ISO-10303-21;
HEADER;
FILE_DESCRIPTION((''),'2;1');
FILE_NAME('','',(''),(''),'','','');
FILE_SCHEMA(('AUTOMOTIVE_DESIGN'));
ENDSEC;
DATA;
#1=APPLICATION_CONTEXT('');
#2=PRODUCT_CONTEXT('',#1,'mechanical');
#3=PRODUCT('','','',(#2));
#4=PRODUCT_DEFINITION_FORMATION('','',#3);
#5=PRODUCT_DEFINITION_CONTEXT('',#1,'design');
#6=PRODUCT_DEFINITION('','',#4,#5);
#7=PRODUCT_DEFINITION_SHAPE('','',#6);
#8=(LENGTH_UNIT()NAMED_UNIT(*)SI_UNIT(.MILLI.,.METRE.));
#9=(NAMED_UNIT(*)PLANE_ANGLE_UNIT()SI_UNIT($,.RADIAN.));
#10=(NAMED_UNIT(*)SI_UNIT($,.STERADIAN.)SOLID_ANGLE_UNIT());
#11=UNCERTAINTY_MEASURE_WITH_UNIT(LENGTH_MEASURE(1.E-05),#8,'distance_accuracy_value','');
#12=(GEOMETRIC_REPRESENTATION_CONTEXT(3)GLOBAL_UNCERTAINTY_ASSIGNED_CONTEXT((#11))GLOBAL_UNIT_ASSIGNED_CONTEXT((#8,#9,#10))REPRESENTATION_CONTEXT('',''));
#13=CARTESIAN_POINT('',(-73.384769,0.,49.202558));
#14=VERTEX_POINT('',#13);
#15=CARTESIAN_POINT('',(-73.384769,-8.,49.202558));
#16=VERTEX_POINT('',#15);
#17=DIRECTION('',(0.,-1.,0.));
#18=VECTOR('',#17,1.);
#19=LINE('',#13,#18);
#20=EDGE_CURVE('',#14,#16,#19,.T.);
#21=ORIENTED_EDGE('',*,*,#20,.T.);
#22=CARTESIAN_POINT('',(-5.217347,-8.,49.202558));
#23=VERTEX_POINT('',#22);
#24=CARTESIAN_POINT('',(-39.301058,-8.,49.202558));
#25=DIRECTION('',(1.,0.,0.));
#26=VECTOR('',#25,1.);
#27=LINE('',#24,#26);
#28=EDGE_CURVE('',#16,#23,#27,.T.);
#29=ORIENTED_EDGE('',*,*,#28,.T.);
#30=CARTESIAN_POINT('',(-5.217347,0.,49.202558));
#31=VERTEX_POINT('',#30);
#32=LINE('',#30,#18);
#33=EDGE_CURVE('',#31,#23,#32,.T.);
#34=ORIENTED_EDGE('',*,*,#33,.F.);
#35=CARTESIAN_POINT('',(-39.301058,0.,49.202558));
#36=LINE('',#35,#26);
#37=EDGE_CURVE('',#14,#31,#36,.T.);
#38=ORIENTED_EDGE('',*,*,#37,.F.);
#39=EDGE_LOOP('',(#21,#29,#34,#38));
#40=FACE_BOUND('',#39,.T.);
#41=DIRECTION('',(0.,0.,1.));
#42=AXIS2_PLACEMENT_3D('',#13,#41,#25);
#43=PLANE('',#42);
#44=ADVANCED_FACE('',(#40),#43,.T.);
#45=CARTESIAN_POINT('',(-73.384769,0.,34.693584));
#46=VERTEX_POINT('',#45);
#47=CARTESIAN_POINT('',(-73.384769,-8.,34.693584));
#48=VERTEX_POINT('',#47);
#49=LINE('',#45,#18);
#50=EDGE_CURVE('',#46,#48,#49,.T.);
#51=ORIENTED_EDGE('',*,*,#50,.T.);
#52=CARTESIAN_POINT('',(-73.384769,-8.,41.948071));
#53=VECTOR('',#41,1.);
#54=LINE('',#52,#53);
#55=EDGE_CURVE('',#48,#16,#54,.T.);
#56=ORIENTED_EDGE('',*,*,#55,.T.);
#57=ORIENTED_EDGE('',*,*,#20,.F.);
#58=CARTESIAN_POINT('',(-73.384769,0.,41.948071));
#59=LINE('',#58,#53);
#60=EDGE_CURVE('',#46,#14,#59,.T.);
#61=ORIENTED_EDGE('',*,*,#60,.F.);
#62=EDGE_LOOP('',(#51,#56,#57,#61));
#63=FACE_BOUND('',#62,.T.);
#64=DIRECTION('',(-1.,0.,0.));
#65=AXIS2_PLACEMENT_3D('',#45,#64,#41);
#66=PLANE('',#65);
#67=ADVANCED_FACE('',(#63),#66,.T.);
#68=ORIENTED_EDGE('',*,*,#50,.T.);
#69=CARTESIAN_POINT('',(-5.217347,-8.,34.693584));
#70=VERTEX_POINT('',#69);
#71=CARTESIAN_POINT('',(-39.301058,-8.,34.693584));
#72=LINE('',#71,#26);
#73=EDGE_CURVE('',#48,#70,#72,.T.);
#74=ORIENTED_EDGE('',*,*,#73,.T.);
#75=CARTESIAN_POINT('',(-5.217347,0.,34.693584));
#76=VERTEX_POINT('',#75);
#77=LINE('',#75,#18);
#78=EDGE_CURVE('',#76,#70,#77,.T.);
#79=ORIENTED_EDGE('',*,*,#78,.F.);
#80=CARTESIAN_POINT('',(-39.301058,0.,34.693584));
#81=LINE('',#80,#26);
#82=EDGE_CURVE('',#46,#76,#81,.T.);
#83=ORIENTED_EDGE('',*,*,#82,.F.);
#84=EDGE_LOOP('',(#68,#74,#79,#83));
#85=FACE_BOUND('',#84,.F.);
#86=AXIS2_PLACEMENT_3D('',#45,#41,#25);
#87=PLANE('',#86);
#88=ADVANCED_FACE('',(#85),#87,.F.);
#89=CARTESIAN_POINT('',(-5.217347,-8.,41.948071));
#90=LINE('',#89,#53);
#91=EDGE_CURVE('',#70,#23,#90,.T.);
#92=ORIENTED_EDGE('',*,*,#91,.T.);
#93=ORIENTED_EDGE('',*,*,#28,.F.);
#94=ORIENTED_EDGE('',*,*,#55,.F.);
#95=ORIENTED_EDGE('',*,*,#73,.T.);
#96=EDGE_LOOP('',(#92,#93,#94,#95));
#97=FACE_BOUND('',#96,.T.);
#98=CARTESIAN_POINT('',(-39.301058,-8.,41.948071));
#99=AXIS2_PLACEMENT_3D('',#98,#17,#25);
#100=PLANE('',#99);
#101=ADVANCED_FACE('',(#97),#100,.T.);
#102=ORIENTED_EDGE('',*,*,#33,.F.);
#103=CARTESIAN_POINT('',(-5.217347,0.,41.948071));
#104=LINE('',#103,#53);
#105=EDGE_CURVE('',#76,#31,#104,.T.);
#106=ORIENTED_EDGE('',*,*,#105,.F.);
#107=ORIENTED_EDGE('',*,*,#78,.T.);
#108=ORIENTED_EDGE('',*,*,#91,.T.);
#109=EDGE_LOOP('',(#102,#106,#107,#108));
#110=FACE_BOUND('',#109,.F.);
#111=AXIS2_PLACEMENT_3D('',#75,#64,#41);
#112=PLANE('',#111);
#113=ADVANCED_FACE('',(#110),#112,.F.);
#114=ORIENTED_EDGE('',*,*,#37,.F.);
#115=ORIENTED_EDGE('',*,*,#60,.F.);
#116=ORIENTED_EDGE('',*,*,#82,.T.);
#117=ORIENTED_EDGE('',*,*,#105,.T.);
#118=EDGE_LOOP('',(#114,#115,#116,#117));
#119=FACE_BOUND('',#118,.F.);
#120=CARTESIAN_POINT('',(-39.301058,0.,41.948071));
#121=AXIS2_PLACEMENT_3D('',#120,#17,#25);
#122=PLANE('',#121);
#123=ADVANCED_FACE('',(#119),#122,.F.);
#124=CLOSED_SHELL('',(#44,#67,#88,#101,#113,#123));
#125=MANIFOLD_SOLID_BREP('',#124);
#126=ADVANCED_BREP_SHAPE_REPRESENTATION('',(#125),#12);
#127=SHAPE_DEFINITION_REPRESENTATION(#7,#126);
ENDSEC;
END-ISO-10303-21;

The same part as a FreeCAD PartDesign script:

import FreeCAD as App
import Part
import Sketcher
from FreeCAD import Vector
Q = App.Units.Quantity


def add_polygon(sketch, points):
    """Adds a closed chain of lines whose ends are joined by coincident constraints."""
    first, n = sketch.GeometryCount, len(points)
    for a, b in zip(points, points[1:] + points[:1]):
        sketch.addGeometry(Part.LineSegment(App.Vector(*a, 0), App.Vector(*b, 0)), False)
    for i in range(n):
        sketch.addConstraint(Sketcher.Constraint("Coincident", first + i, 2, first + (i + 1) % n, 1))

doc = App.newDocument("Part")
body = doc.addObject("PartDesign::Body", "Body")

# Sketch on YZ plane
sketch1 = body.newObject("Sketcher::SketchObject", "Sketch")
sketch1.AttachmentSupport = (doc.getObject("YZ_Plane"), [""])
sketch1.MapMode = "FlatFace"
add_polygon(sketch1, [(-63, 11), (-63, 5), (9, 5), (9, 11)])  # lines 0-3
sketch1.addConstraint([
    Sketcher.Constraint("Vertical", 0),
    Sketcher.Constraint("Horizontal", 1),
    Sketcher.Constraint("Vertical", 2),
    Sketcher.Constraint("Horizontal", 3),
    Sketcher.Constraint("DistanceY", 0, 2, 0, 1, Q("6.76743 mm")),
    Sketcher.Constraint("DistanceX", 1, 1, 1, 2, Q("71.955315 mm")),
    Sketcher.Constraint("DistanceX", 0, 2, -1, 1, Q("63.241981 mm")),
    Sketcher.Constraint("DistanceY", -1, 1, 0, 2, Q("4.56868 mm")),
])
pad1 = body.newObject("PartDesign::Pad", "Pad")
pad1.Profile = sketch1
pad1.Length = 4
body2 = doc.addObject("PartDesign::Body", "Body001")

# Sketch on XZ plane
sketch2 = body2.newObject("Sketcher::SketchObject", "Sketch001")
sketch2.AttachmentSupport = (doc.getObject("XZ_Plane001"), [""])
sketch2.MapMode = "FlatFace"
add_polygon(sketch2, [(-73, 49), (-73, 35), (-5, 35), (-5, 49)])  # lines 0-3
sketch2.addConstraint([
    Sketcher.Constraint("Vertical", 0),
    Sketcher.Constraint("Horizontal", 1),
    Sketcher.Constraint("Vertical", 2),
    Sketcher.Constraint("Horizontal", 3),
    Sketcher.Constraint("DistanceX", 1, 1, 1, 2, Q("68.167422 mm")),
    Sketcher.Constraint("DistanceY", 0, 2, 0, 1, Q("14.508974 mm")),
    Sketcher.Constraint("DistanceX", 0, 2, -1, 1, Q("73.384769 mm")),
    Sketcher.Constraint("DistanceY", -1, 1, 0, 2, Q("34.693584 mm")),
])
pad2 = body2.newObject("PartDesign::Pad", "Pad001")
pad2.Profile = sketch2
pad2.Length = 8
body.Visibility = False

doc.recompute()
